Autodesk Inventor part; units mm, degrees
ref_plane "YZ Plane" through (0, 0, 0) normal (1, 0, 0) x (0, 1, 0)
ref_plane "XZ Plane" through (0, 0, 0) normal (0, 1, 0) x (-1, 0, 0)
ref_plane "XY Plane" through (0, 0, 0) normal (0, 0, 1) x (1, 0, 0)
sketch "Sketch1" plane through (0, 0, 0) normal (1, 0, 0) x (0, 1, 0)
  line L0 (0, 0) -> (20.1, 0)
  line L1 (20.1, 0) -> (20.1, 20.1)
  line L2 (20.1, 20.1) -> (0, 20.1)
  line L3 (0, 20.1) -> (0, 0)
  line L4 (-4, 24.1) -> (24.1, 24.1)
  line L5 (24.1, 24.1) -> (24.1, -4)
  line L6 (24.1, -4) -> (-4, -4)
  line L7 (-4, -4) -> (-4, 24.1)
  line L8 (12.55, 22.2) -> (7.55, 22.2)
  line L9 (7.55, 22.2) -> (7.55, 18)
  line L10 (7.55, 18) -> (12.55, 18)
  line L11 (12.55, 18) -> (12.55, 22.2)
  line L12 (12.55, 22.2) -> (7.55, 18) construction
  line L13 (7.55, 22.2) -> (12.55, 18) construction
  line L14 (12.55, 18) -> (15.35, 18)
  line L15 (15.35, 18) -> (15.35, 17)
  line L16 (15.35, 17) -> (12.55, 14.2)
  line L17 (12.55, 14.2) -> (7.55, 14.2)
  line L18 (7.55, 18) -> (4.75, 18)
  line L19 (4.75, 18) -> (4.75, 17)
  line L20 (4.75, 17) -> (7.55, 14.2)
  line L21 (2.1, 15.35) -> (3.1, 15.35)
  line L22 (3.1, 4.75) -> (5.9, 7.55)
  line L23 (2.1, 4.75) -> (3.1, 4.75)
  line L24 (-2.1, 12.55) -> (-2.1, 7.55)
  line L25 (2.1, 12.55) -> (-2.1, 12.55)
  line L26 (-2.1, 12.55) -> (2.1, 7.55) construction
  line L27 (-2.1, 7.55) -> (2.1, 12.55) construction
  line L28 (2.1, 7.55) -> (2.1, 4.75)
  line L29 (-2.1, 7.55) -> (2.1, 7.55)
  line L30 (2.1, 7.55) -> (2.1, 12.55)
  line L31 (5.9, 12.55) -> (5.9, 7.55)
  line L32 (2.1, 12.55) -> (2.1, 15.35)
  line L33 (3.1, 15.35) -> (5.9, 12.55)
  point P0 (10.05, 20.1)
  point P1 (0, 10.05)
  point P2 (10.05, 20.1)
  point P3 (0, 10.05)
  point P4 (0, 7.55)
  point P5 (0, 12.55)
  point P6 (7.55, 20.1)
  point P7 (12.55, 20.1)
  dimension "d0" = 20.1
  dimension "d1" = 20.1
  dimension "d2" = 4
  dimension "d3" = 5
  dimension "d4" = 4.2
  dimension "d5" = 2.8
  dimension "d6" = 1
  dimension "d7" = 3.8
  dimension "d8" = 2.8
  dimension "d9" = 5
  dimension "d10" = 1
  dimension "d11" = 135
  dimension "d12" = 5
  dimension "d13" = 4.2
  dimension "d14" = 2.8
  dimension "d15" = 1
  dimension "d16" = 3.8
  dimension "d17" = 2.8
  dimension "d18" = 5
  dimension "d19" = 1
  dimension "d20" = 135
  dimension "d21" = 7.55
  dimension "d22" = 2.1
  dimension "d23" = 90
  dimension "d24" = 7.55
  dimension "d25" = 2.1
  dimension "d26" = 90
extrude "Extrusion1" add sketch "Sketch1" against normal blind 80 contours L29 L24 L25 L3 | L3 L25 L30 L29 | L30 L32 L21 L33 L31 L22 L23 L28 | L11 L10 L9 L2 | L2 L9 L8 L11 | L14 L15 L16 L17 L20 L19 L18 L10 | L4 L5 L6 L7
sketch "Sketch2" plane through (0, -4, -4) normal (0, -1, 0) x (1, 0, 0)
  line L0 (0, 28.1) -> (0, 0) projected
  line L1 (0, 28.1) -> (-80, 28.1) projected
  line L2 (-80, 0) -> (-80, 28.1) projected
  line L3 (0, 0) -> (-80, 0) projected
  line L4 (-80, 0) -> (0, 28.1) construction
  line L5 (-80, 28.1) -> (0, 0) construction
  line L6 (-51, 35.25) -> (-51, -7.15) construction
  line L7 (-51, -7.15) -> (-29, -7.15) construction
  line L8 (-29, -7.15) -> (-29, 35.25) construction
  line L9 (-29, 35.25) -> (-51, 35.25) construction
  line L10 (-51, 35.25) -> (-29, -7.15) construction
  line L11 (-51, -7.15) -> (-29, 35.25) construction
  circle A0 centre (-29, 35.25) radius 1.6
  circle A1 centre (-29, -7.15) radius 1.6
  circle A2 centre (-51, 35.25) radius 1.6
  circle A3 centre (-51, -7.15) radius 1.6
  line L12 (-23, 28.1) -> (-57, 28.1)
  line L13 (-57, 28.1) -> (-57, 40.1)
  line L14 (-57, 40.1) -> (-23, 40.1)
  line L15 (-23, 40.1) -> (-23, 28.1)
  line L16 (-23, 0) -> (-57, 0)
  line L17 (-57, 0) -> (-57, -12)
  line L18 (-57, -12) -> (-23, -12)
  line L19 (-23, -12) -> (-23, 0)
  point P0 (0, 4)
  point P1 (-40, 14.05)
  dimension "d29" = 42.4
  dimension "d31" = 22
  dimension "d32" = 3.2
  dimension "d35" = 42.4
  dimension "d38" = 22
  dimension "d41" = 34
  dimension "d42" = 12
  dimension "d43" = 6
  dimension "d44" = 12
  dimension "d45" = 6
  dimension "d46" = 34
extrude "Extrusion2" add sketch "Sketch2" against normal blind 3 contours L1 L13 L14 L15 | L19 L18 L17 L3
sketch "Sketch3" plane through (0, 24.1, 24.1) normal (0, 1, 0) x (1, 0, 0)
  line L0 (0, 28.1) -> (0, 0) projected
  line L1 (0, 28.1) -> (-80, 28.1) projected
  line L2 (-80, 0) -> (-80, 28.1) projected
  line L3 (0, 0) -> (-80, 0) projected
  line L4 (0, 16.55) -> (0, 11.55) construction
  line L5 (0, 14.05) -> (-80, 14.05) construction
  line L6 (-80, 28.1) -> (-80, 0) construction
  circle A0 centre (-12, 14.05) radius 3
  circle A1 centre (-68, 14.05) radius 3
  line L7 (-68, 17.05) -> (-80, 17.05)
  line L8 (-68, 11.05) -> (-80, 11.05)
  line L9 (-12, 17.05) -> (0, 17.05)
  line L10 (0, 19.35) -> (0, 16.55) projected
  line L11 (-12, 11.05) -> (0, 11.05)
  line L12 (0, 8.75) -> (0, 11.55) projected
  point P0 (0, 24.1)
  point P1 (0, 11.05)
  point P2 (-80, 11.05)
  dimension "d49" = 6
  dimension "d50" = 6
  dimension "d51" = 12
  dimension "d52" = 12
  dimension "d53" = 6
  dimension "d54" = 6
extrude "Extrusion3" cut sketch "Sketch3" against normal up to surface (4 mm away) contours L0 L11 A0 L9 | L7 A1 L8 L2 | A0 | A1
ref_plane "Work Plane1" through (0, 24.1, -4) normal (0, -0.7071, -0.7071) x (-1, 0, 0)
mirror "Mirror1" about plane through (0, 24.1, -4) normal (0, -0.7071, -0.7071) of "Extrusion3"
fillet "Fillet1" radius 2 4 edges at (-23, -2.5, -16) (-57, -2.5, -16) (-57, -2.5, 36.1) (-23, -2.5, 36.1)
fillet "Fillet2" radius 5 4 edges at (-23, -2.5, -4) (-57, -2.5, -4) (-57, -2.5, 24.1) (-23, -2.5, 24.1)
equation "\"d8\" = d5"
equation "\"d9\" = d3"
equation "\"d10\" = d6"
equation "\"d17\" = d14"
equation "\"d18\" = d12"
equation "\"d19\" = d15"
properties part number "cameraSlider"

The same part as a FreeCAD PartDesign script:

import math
import FreeCAD as App
import Part
import Sketcher


def edges_at(feature, points):
    """Names of the edges that pass closest to the given points."""
    edges = feature.Shape.Edges
    near = lambda p: min(range(len(edges)), key=lambda i: edges[i].distToShape(Part.Vertex(*p))[0])
    return sorted({f"Edge{near(p) + 1}" for p in points})


def add_polygon(sketch, points):
    """Adds a closed chain of lines whose ends are joined by coincident constraints."""
    first, n = sketch.GeometryCount, len(points)
    for a, b in zip(points, points[1:] + points[:1]):
        sketch.addGeometry(Part.LineSegment(App.Vector(*a, 0), App.Vector(*b, 0)), False)
    for i in range(n):
        sketch.addConstraint(Sketcher.Constraint("Coincident", first + i, 2, first + (i + 1) % n, 1))

doc = App.newDocument("Part")
body = doc.addObject("PartDesign::Body", "Body")

# Sketch on YZ plane
sketch1 = body.newObject("Sketcher::SketchObject", "Sketch")
sketch1.AttachmentSupport = (doc.getObject("YZ_Plane"), [""])
sketch1.MapMode = "FlatFace"
add_polygon(sketch1, [(24.1, 24.1), (-4, 24.1), (-4, -4), (24.1, -4)])  # lines 0-3
add_polygon(sketch1, [(20.1, 0), (0, 0), (0, 7.5), (2.1, 7.5), (2.1, 4.8), (3.1, 4.8), (5.9, 7.5), (5.9, 12.6), (3.1, 15.3), (2.1, 15.3), (2.1, 12.6), (0, 12.6), (0, 20.1), (7.5, 20.1), (7.5, 18), (4.8, 18), (4.8, 17), (7.5, 14.2), (12.6, 14.2), (15.3, 17), (15.3, 18), (12.6, 18), (12.6, 20.1), (20.1, 20.1)])  # lines 4-27
sketch1.addConstraint([
    Sketcher.Constraint("Horizontal", 0),
    Sketcher.Constraint("Vertical", 1),
    Sketcher.Constraint("Horizontal", 2),
    Sketcher.Constraint("Vertical", 3),
    Sketcher.Constraint("Horizontal", 4),
    Sketcher.Constraint("Vertical", 5),
    Sketcher.Constraint("Horizontal", 6),
    Sketcher.Constraint("Vertical", 7),
    Sketcher.Constraint("Horizontal", 8),
    Sketcher.Constraint("Vertical", 10),
    Sketcher.Constraint("Horizontal", 12),
    Sketcher.Constraint("Vertical", 13),
    Sketcher.Constraint("Horizontal", 14),
    Sketcher.Constraint("Vertical", 15),
    Sketcher.Constraint("Horizontal", 16),
    Sketcher.Constraint("Vertical", 17),
    Sketcher.Constraint("Horizontal", 18),
    Sketcher.Constraint("Vertical", 19),
    Sketcher.Constraint("Horizontal", 21),
    Sketcher.Constraint("Vertical", 23),
    Sketcher.Constraint("Horizontal", 24),
    Sketcher.Constraint("Vertical", 25),
    Sketcher.Constraint("Horizontal", 26),
    Sketcher.Constraint("Vertical", 27),
    Sketcher.Constraint("Coincident", 4, 2, -1, 1),
    Sketcher.Constraint("PointOnObject", 14, 2, -2),
    Sketcher.Constraint("Perpendicular", 9, 11),
    Sketcher.Constraint("Parallel", 11, 20),
    Sketcher.Constraint("Perpendicular", 20, 22),
    Sketcher.Constraint("Horizontal", 6, 2, 9, 2),
    Sketcher.Constraint("Horizontal", 10, 2, 13, 2),
    Sketcher.Constraint("Horizontal", 19, 2, 22, 2),
    Sketcher.Constraint("Horizontal", 18, 2, 23, 2),
    Sketcher.Constraint("Horizontal", 16, 2, 25, 2),
    Sketcher.Constraint("Vertical", 8, 2, 11, 2),
    Sketcher.Constraint("Vertical", 7, 2, 12, 2),
    Sketcher.Constraint("Vertical", 17, 2, 20, 2),
    Sketcher.Constraint("Vertical", 21, 2, 24, 2),
    Sketcher.Constraint("Equal", 18, 24),
    Sketcher.Constraint("Equal", 16, 26),
    Sketcher.Constraint("Equal", 2, 1),
    Sketcher.Constraint("Equal", 26, 5),
    Sketcher.Constraint("Equal", 24, 7),
    Sketcher.Constraint("Equal", 21, 10),
    Sketcher.Constraint("Equal", 5, 15),
    Sketcher.Constraint("Equal", 14, 17),
    Sketcher.Constraint("Equal", 12, 19),
    Sketcher.Constraint("DistanceX", 8, 1, 8, 2, 1.0),
    Sketcher.Constraint("DistanceX", 21, 1, 21, 2, 5.0),
    Sketcher.Constraint("DistanceX", 4, 2, 4, 1, 20.1),
    Sketcher.Constraint("DistanceX", 6, 1, 6, 2, 2.1),
    Sketcher.Constraint("DistanceX", 18, 2, 18, 1, 2.8),
    Sketcher.Constraint("DistanceX", 0, 2, -1, 1, 4.0),
    Sketcher.Constraint("DistanceY", 1, 2, -1, 1, 4.0),
    Sketcher.Constraint("DistanceY", 15, 2, 0, 2, 4.0),
])
pad1 = body.newObject("PartDesign::Pad", "Pad")
pad1.Profile = sketch1
pad1.Length = 80
pad1.Reversed = True

# Sketch on XZ plane
sketch2 = body.newObject("Sketcher::SketchObject", "Sketch001")
sketch2.AttachmentSupport = (doc.getObject("XZ_Plane"), [""])
sketch2.MapMode = "FlatFace"
sketch2.AttachmentOffset = App.Placement(App.Vector(0, 0, 4), App.Rotation())
add_polygon(sketch2, [(-57, 24.1), (-23, 24.1), (-23, 36.1), (-57, 36.1)])  # lines 0-3
sketch2.addGeometry(Part.Circle(App.Vector(-51, 31.2, 0), App.Vector(0, 0, 1), 1.6), False)  # 4
sketch2.addGeometry(Part.Circle(App.Vector(-29, 31.2, 0), App.Vector(0, 0, 1), 1.6), False)  # 5
add_polygon(sketch2, [(-23, -16), (-23, -4), (-57, -4), (-57, -16)])  # lines 6-9
sketch2.addGeometry(Part.Circle(App.Vector(-51, -11.2, 0), App.Vector(0, 0, 1), 1.6), False)  # 10
sketch2.addGeometry(Part.Circle(App.Vector(-29, -11.2, 0), App.Vector(0, 0, 1), 1.6), False)  # 11
sketch2.addConstraint([
    Sketcher.Constraint("Horizontal", 0),
    Sketcher.Constraint("Vertical", 1),
    Sketcher.Constraint("Horizontal", 2),
    Sketcher.Constraint("Vertical", 3),
    Sketcher.Constraint("Vertical", 6),
    Sketcher.Constraint("Horizontal", 7),
    Sketcher.Constraint("Vertical", 8),
    Sketcher.Constraint("Horizontal", 9),
    Sketcher.Constraint("Equal", 4, 5),
    Sketcher.Constraint("Equal", 5, 10),
    Sketcher.Constraint("Equal", 10, 11),
    Sketcher.Constraint("Horizontal", 4, 3, 5, 3),
    Sketcher.Constraint("Horizontal", 10, 3, 11, 3),
    Sketcher.Constraint("Vertical", 4, 3, 10, 3),
    Sketcher.Constraint("Vertical", 5, 3, 11, 3),
    Sketcher.Constraint("Vertical", 1, 2, 6, 2),
    Sketcher.Constraint("Vertical", 3, 2, 7, 2),
    Sketcher.Constraint("Equal", 3, 6),
    Sketcher.Constraint("Diameter", 4, 3.2),
    Sketcher.Constraint("DistanceX", 0, 1, 0, 2, 34.0),
    Sketcher.Constraint("DistanceY", 1, 1, 1, 2, 12.0),
    Sketcher.Constraint("DistanceX", 4, 3, 5, 3, 22.0),
    Sketcher.Constraint("DistanceX", 5, 3, 0, 2, 6.0),
    Sketcher.Constraint("DistanceY", 10, 3, 4, 3, 42.4),
    Sketcher.Constraint("DistanceX", 4, 3, -1, 1, 51.0),
    Sketcher.Constraint("DistanceY", 6, 2, -1, 1, 4.0),
    Sketcher.Constraint("DistanceY", -1, 1, 0, 2, 24.1),
    Sketcher.Constraint("DistanceY", -1, 1, 4, 3, 31.25),
])
pad2 = body.newObject("PartDesign::Pad", "Pad001")
pad2.Profile = sketch2
pad2.Length = 3
pad2.Reversed = True

# Sketch on XZ plane
sketch3 = body.newObject("Sketcher::SketchObject", "Sketch002")
sketch3.AttachmentSupport = (doc.getObject("XZ_Plane"), [""])
sketch3.MapMode = "FlatFace"
sketch3.AttachmentOffset = App.Placement(App.Vector(0, 0, -24.1), App.Rotation())
sketch3.addGeometry([
    Part.LineSegment(App.Vector(0, 7, 0), App.Vector(-12, 7, 0)),  # 0
    Part.ArcOfCircle(Part.Circle(App.Vector(-12, 10.1, 0), App.Vector(0, 0, 1), 3), math.radians(90), math.radians(270)),  # 1
    Part.LineSegment(App.Vector(-12, 13.1, 0), App.Vector(0, 13.1, 0)),  # 2
    Part.LineSegment(App.Vector(0, 13.1, 0), App.Vector(0, 7, 0)),  # 3
    Part.LineSegment(App.Vector(-68, 7, 0), App.Vector(-80, 7, 0)),  # 4
    Part.LineSegment(App.Vector(-80, 7, 0), App.Vector(-80, 13.1, 0)),  # 5
    Part.LineSegment(App.Vector(-80, 13.1, 0), App.Vector(-68, 13.1, 0)),  # 6
    Part.ArcOfCircle(Part.Circle(App.Vector(-68, 10.1, 0), App.Vector(0, 0, 1), 3), math.radians(-90), math.radians(90)),  # 7
], False)
sketch3.addConstraint([
    Sketcher.Constraint("Tangent", 0, 2, 1, 2),
    Sketcher.Constraint("Tangent", 1, 1, 2, 1),
    Sketcher.Constraint("Coincident", 2, 2, 3, 1),
    Sketcher.Constraint("Coincident", 3, 2, 0, 1),
    Sketcher.Constraint("Coincident", 4, 2, 5, 1),
    Sketcher.Constraint("Coincident", 5, 2, 6, 1),
    Sketcher.Constraint("Tangent", 6, 2, 7, 2),
    Sketcher.Constraint("Tangent", 7, 1, 4, 1),
    Sketcher.Constraint("Horizontal", 0),
    Sketcher.Constraint("Horizontal", 2),
    Sketcher.Constraint("Vertical", 3),
    Sketcher.Constraint("Horizontal", 4),
    Sketcher.Constraint("Vertical", 5),
    Sketcher.Constraint("Horizontal", 6),
    Sketcher.Constraint("Equal", 1, 7),
    Sketcher.Constraint("PointOnObject", 2, 2, -2),
    Sketcher.Constraint("Horizontal", 1, 3, 7, 3),
    Sketcher.Constraint("Equal", 2, 4),
    Sketcher.Constraint("Radius", 1, 3.0),
    Sketcher.Constraint("DistanceX", 0, 2, 0, 1, 12.0),
    Sketcher.Constraint("DistanceX", 7, 3, -1, 1, 68.0),
    Sketcher.Constraint("DistanceY", -1, 1, 1, 3, 10.05),
])
pocket1 = body.newObject("PartDesign::Pocket", "Pocket")
pocket1.Profile = sketch3
pocket1.Length = 4
pocket1.Reversed = True
doc.recompute()

datumplane = body.newObject("PartDesign::Plane", "DatumPlane")
datumplane.Placement = App.Placement(App.Vector(0, 10.05, 10.05), App.Rotation(App.Vector(0, -0.707106781, 0.707106781), App.Vector(-1, 0, 0), App.Vector(0, -0.707106781, -0.707106781), "ZXY"))
mirrored = body.newObject("PartDesign::Mirrored", "Mirrored")
mirrored.Originals = [pocket1]
mirrored.MirrorPlane = (datumplane, [""])
body.Tip = mirrored
doc.recompute()

fillet = body.newObject("PartDesign::Fillet", "Fillet")
fillet.Base = (mirrored, edges_at(mirrored, [
    (-23, -2.5, -16),
    (-57, -2.5, -16),
    (-57, -2.5, 36.1),
    (-23, -2.5, 36.1),
]))
fillet.Radius = 2
doc.recompute()

fillet2 = body.newObject("PartDesign::Fillet", "Fillet001")
fillet2.Base = (fillet, edges_at(fillet, [
    (-23, -2.5, -4),
    (-57, -2.5, -4),
    (-57, -2.5, 24.1),
    (-23, -2.5, 24.1),
]))
fillet2.Radius = 5

doc.recompute()
